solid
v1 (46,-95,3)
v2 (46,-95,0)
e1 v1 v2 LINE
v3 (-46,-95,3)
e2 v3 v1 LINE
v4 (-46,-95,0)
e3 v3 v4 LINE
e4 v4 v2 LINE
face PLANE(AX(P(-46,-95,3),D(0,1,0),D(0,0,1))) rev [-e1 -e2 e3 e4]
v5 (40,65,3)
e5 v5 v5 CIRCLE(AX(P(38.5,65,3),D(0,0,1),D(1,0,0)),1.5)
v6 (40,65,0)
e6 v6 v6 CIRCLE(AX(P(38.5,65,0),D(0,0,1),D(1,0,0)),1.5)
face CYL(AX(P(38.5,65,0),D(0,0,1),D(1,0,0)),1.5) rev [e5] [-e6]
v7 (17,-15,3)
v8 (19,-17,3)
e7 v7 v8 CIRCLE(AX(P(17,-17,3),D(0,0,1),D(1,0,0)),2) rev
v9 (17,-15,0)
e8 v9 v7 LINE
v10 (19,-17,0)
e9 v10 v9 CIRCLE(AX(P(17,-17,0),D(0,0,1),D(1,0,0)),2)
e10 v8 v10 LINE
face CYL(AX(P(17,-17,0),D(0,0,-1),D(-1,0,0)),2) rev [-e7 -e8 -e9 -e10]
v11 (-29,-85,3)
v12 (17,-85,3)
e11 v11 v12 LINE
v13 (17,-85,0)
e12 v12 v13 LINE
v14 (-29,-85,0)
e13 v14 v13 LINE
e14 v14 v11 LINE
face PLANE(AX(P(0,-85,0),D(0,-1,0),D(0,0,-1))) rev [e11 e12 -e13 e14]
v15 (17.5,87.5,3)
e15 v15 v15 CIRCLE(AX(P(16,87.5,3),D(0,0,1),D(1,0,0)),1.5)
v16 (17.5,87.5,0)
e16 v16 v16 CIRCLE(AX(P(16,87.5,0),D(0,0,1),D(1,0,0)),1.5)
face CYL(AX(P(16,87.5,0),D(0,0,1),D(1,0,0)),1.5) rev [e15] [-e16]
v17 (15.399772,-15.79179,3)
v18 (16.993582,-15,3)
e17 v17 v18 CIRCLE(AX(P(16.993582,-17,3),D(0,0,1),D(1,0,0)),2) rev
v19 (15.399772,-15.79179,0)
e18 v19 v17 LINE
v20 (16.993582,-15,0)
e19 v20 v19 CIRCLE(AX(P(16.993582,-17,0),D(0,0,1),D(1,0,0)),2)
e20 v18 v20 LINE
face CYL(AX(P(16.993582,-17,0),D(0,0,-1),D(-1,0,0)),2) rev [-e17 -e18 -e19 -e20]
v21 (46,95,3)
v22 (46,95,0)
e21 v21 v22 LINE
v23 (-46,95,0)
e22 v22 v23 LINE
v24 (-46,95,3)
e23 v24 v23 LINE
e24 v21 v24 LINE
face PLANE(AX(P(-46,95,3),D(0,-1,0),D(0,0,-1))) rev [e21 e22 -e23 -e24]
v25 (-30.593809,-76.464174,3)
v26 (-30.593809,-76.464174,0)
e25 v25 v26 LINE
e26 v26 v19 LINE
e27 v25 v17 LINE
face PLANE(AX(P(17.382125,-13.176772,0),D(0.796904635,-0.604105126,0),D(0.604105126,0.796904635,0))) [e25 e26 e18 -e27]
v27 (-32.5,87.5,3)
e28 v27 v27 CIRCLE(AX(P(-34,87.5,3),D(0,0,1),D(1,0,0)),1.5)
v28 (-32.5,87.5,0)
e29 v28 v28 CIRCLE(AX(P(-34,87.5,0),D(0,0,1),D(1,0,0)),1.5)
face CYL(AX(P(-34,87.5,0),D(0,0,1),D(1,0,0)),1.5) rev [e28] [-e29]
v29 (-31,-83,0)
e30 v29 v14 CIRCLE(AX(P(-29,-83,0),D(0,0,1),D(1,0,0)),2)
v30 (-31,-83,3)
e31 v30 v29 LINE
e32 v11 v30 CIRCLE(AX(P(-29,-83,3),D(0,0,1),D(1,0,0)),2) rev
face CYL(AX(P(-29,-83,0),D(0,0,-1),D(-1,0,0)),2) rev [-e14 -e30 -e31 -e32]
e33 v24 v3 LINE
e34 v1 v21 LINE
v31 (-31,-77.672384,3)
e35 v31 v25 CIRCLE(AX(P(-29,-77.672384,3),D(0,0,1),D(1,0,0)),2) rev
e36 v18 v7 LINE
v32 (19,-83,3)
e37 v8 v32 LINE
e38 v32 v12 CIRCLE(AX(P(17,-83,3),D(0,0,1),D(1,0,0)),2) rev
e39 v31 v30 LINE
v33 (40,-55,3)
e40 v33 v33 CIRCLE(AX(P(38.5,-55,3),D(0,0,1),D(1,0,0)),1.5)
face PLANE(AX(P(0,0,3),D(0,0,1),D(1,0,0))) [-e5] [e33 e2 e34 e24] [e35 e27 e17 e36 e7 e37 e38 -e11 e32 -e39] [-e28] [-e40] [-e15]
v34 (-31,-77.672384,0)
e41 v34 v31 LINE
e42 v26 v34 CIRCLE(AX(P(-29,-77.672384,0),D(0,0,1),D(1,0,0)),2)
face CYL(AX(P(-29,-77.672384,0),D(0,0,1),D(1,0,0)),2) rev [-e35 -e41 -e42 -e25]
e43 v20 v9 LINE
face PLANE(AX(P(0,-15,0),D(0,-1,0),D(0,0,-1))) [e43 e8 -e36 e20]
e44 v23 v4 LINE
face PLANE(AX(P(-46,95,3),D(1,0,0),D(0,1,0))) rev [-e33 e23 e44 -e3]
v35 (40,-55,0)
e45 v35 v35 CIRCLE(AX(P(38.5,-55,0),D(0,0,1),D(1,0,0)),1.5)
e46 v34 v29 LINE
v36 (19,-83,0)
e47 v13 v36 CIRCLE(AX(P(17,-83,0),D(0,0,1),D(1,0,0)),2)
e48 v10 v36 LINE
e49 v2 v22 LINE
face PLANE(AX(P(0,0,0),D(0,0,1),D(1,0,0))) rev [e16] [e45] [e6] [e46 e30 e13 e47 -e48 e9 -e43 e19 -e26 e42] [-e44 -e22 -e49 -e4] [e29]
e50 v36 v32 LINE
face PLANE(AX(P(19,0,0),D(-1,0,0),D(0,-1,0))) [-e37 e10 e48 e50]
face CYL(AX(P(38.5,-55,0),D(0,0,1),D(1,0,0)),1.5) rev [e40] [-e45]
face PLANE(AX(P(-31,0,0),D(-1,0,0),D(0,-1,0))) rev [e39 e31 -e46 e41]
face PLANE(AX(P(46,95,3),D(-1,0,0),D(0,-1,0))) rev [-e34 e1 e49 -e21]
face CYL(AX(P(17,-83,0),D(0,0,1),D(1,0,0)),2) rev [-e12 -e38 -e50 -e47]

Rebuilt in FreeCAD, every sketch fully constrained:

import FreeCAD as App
import Part
import Sketcher
from FreeCAD import Vector


def edges_at(feature, points):
    """Names of the edges that pass closest to the given points."""
    edges = feature.Shape.Edges
    near = lambda p: min(range(len(edges)), key=lambda i: edges[i].distToShape(Part.Vertex(*p))[0])
    return sorted({f"Edge{near(p) + 1}" for p in points})


def add_polygon(sketch, points):
    """Adds a closed chain of lines whose ends are joined by coincident constraints."""
    first, n = sketch.GeometryCount, len(points)
    for a, b in zip(points, points[1:] + points[:1]):
        sketch.addGeometry(Part.LineSegment(App.Vector(*a, 0), App.Vector(*b, 0)), False)
    for i in range(n):
        sketch.addConstraint(Sketcher.Constraint("Coincident", first + i, 2, first + (i + 1) % n, 1))

doc = App.newDocument("Part")
params = doc.addObject("Spreadsheet::Sheet", "Params")
for row, (alias, value) in enumerate([
    ("sketch1_width", "92 mm"),
    ("sketch1_height", "190 mm"),
    ("pad1_length", "3 mm"),
    ("sketch2_diameter", "3 mm"),
    ("sketch3_width", "3 mm"),
    ("sketch3_width2", "50 mm"),
    ("sketch3_height", "8 mm"),
    ("sketch3_height2", "70 mm"),
    ("fillet_radius", "2 mm"),
], start=1):
    params.set(f"A{row}", alias)
    params.set(f"B{row}", "=" + value)
    params.setAlias(f"B{row}", alias)

body = doc.addObject("PartDesign::Body", "Body")

# Sketch on XY plane
sketch1 = body.newObject("Sketcher::SketchObject", "Sketch")
sketch1.AttachmentSupport = (doc.getObject("XY_Plane"), [""])
sketch1.MapMode = "FlatFace"
add_polygon(sketch1, [(-46, 95), (-46, -95), (46, -95), (46, 95)])  # lines 0-3
sketch1.addConstraint(Sketcher.Constraint("Vertical", 0))
sketch1.addConstraint(Sketcher.Constraint("Horizontal", 1))
sketch1.addConstraint(Sketcher.Constraint("Vertical", 2))
sketch1.addConstraint(Sketcher.Constraint("Horizontal", 3))
sketch1.addConstraint(Sketcher.Constraint("Symmetric", 0, 2, 2, 2, -1, 1))
sketch1.addConstraint(Sketcher.Constraint("DistanceX", 1, 1, 1, 2, 92.0))
sketch1.addConstraint(Sketcher.Constraint("DistanceY", 0, 2, 0, 1, 190.0))
sketch1.setExpression("Constraints[9]", "Params.sketch1_width")
sketch1.setExpression("Constraints[10]", "Params.sketch1_height")
pad1 = body.newObject("PartDesign::Pad", "Pad")
pad1.Profile = sketch1
pad1.setExpression("Length", "Params.pad1_length")

# Sketch on XY plane
sketch2 = body.newObject("Sketcher::SketchObject", "Sketch001")
sketch2.AttachmentSupport = (doc.getObject("XY_Plane"), [""])
sketch2.MapMode = "FlatFace"
sketch2.AttachmentOffset = App.Placement(Vector(0, 0, 3), App.Rotation())
sketch2.addGeometry(Part.Circle(Vector(-34, 87.5, 0), Vector(0, 0, 1), 1.5), False)
sketch2.addGeometry(Part.Circle(Vector(16, 87.5, 0), Vector(0, 0, 1), 1.5), False)
sketch2.addGeometry(Part.Circle(Vector(38.5, 65, 0), Vector(0, 0, 1), 1.5), False)
sketch2.addGeometry(Part.Circle(Vector(38.5, -55, 0), Vector(0, 0, 1), 1.5), False)
sketch2.addConstraint(Sketcher.Constraint("Equal", 0, 1))
sketch2.addConstraint(Sketcher.Constraint("Equal", 1, 2))
sketch2.addConstraint(Sketcher.Constraint("Equal", 2, 3))
sketch2.addConstraint(Sketcher.Constraint("Horizontal", 0, 3, 1, 3))
sketch2.addConstraint(Sketcher.Constraint("Vertical", 2, 3, 3, 3))
sketch2.addConstraint(Sketcher.Constraint("Diameter", 0, 3.0))
sketch2.addConstraint(Sketcher.Constraint("DistanceX", 0, 3, -1, 1, 34.0))
sketch2.addConstraint(Sketcher.Constraint("DistanceX", -1, 1, 1, 3, 16.0))
sketch2.addConstraint(Sketcher.Constraint("DistanceY", -1, 1, 2, 3, 65.0))
sketch2.addConstraint(Sketcher.Constraint("DistanceY", 3, 3, -1, 1, 55.0))
sketch2.addConstraint(Sketcher.Constraint("DistanceY", -1, 1, 0, 3, 87.5))
sketch2.addConstraint(Sketcher.Constraint("DistanceX", -1, 1, 2, 3, 38.5))
sketch2.setExpression("Constraints[5]", "Params.sketch2_diameter")
pocket1 = body.newObject("PartDesign::Pocket", "Pocket")
pocket1.Profile = sketch2
pocket1.Type = "ThroughAll"

# Sketch on XY plane
sketch3 = body.newObject("Sketcher::SketchObject", "Sketch002")
sketch3.AttachmentSupport = (doc.getObject("XY_Plane"), [""])
sketch3.MapMode = "FlatFace"
sketch3.AttachmentOffset = App.Placement(Vector(0, 0, 3), App.Rotation())
add_polygon(sketch3, [(19, -15), (16, -15), (-31, -77), (-31, -85), (19, -85)])  # lines 0-4
sketch3.addConstraint(Sketcher.Constraint("Horizontal", 0))
sketch3.addConstraint(Sketcher.Constraint("Vertical", 2))
sketch3.addConstraint(Sketcher.Constraint("Horizontal", 3))
sketch3.addConstraint(Sketcher.Constraint("Vertical", 4))
sketch3.addConstraint(Sketcher.Constraint("DistanceX", 0, 2, 0, 1, 3.0))
sketch3.addConstraint(Sketcher.Constraint("DistanceX", 3, 1, 3, 2, 50.0))
sketch3.addConstraint(Sketcher.Constraint("DistanceY", 2, 2, 2, 1, 8.0))
sketch3.addConstraint(Sketcher.Constraint("DistanceY", 4, 1, 4, 2, 70.0))
sketch3.addConstraint(Sketcher.Constraint("DistanceX", -1, 1, 0, 2, 16.0))
sketch3.addConstraint(Sketcher.Constraint("DistanceY", 0, 2, -1, 1, 15.0))
sketch3.setExpression("Constraints[9]", "Params.sketch3_width")
sketch3.setExpression("Constraints[10]", "Params.sketch3_width2")
sketch3.setExpression("Constraints[11]", "Params.sketch3_height")
sketch3.setExpression("Constraints[12]", "Params.sketch3_height2")
pocket2 = body.newObject("PartDesign::Pocket", "Pocket001")
pocket2.Profile = sketch3
pocket2.Type = "ThroughAll"
doc.recompute()

fillet = body.newObject("PartDesign::Fillet", "Fillet")
fillet.Base = (pocket2, edges_at(pocket2, [
    (-31, -77, 1.5),
    (16, -15, 1.5),
    (19, -15, 1.5),
    (19, -85, 1.5),
    (-31, -85, 1.5),
]))
fillet.setExpression("Radius", "Params.fillet_radius")

doc.recompute()
